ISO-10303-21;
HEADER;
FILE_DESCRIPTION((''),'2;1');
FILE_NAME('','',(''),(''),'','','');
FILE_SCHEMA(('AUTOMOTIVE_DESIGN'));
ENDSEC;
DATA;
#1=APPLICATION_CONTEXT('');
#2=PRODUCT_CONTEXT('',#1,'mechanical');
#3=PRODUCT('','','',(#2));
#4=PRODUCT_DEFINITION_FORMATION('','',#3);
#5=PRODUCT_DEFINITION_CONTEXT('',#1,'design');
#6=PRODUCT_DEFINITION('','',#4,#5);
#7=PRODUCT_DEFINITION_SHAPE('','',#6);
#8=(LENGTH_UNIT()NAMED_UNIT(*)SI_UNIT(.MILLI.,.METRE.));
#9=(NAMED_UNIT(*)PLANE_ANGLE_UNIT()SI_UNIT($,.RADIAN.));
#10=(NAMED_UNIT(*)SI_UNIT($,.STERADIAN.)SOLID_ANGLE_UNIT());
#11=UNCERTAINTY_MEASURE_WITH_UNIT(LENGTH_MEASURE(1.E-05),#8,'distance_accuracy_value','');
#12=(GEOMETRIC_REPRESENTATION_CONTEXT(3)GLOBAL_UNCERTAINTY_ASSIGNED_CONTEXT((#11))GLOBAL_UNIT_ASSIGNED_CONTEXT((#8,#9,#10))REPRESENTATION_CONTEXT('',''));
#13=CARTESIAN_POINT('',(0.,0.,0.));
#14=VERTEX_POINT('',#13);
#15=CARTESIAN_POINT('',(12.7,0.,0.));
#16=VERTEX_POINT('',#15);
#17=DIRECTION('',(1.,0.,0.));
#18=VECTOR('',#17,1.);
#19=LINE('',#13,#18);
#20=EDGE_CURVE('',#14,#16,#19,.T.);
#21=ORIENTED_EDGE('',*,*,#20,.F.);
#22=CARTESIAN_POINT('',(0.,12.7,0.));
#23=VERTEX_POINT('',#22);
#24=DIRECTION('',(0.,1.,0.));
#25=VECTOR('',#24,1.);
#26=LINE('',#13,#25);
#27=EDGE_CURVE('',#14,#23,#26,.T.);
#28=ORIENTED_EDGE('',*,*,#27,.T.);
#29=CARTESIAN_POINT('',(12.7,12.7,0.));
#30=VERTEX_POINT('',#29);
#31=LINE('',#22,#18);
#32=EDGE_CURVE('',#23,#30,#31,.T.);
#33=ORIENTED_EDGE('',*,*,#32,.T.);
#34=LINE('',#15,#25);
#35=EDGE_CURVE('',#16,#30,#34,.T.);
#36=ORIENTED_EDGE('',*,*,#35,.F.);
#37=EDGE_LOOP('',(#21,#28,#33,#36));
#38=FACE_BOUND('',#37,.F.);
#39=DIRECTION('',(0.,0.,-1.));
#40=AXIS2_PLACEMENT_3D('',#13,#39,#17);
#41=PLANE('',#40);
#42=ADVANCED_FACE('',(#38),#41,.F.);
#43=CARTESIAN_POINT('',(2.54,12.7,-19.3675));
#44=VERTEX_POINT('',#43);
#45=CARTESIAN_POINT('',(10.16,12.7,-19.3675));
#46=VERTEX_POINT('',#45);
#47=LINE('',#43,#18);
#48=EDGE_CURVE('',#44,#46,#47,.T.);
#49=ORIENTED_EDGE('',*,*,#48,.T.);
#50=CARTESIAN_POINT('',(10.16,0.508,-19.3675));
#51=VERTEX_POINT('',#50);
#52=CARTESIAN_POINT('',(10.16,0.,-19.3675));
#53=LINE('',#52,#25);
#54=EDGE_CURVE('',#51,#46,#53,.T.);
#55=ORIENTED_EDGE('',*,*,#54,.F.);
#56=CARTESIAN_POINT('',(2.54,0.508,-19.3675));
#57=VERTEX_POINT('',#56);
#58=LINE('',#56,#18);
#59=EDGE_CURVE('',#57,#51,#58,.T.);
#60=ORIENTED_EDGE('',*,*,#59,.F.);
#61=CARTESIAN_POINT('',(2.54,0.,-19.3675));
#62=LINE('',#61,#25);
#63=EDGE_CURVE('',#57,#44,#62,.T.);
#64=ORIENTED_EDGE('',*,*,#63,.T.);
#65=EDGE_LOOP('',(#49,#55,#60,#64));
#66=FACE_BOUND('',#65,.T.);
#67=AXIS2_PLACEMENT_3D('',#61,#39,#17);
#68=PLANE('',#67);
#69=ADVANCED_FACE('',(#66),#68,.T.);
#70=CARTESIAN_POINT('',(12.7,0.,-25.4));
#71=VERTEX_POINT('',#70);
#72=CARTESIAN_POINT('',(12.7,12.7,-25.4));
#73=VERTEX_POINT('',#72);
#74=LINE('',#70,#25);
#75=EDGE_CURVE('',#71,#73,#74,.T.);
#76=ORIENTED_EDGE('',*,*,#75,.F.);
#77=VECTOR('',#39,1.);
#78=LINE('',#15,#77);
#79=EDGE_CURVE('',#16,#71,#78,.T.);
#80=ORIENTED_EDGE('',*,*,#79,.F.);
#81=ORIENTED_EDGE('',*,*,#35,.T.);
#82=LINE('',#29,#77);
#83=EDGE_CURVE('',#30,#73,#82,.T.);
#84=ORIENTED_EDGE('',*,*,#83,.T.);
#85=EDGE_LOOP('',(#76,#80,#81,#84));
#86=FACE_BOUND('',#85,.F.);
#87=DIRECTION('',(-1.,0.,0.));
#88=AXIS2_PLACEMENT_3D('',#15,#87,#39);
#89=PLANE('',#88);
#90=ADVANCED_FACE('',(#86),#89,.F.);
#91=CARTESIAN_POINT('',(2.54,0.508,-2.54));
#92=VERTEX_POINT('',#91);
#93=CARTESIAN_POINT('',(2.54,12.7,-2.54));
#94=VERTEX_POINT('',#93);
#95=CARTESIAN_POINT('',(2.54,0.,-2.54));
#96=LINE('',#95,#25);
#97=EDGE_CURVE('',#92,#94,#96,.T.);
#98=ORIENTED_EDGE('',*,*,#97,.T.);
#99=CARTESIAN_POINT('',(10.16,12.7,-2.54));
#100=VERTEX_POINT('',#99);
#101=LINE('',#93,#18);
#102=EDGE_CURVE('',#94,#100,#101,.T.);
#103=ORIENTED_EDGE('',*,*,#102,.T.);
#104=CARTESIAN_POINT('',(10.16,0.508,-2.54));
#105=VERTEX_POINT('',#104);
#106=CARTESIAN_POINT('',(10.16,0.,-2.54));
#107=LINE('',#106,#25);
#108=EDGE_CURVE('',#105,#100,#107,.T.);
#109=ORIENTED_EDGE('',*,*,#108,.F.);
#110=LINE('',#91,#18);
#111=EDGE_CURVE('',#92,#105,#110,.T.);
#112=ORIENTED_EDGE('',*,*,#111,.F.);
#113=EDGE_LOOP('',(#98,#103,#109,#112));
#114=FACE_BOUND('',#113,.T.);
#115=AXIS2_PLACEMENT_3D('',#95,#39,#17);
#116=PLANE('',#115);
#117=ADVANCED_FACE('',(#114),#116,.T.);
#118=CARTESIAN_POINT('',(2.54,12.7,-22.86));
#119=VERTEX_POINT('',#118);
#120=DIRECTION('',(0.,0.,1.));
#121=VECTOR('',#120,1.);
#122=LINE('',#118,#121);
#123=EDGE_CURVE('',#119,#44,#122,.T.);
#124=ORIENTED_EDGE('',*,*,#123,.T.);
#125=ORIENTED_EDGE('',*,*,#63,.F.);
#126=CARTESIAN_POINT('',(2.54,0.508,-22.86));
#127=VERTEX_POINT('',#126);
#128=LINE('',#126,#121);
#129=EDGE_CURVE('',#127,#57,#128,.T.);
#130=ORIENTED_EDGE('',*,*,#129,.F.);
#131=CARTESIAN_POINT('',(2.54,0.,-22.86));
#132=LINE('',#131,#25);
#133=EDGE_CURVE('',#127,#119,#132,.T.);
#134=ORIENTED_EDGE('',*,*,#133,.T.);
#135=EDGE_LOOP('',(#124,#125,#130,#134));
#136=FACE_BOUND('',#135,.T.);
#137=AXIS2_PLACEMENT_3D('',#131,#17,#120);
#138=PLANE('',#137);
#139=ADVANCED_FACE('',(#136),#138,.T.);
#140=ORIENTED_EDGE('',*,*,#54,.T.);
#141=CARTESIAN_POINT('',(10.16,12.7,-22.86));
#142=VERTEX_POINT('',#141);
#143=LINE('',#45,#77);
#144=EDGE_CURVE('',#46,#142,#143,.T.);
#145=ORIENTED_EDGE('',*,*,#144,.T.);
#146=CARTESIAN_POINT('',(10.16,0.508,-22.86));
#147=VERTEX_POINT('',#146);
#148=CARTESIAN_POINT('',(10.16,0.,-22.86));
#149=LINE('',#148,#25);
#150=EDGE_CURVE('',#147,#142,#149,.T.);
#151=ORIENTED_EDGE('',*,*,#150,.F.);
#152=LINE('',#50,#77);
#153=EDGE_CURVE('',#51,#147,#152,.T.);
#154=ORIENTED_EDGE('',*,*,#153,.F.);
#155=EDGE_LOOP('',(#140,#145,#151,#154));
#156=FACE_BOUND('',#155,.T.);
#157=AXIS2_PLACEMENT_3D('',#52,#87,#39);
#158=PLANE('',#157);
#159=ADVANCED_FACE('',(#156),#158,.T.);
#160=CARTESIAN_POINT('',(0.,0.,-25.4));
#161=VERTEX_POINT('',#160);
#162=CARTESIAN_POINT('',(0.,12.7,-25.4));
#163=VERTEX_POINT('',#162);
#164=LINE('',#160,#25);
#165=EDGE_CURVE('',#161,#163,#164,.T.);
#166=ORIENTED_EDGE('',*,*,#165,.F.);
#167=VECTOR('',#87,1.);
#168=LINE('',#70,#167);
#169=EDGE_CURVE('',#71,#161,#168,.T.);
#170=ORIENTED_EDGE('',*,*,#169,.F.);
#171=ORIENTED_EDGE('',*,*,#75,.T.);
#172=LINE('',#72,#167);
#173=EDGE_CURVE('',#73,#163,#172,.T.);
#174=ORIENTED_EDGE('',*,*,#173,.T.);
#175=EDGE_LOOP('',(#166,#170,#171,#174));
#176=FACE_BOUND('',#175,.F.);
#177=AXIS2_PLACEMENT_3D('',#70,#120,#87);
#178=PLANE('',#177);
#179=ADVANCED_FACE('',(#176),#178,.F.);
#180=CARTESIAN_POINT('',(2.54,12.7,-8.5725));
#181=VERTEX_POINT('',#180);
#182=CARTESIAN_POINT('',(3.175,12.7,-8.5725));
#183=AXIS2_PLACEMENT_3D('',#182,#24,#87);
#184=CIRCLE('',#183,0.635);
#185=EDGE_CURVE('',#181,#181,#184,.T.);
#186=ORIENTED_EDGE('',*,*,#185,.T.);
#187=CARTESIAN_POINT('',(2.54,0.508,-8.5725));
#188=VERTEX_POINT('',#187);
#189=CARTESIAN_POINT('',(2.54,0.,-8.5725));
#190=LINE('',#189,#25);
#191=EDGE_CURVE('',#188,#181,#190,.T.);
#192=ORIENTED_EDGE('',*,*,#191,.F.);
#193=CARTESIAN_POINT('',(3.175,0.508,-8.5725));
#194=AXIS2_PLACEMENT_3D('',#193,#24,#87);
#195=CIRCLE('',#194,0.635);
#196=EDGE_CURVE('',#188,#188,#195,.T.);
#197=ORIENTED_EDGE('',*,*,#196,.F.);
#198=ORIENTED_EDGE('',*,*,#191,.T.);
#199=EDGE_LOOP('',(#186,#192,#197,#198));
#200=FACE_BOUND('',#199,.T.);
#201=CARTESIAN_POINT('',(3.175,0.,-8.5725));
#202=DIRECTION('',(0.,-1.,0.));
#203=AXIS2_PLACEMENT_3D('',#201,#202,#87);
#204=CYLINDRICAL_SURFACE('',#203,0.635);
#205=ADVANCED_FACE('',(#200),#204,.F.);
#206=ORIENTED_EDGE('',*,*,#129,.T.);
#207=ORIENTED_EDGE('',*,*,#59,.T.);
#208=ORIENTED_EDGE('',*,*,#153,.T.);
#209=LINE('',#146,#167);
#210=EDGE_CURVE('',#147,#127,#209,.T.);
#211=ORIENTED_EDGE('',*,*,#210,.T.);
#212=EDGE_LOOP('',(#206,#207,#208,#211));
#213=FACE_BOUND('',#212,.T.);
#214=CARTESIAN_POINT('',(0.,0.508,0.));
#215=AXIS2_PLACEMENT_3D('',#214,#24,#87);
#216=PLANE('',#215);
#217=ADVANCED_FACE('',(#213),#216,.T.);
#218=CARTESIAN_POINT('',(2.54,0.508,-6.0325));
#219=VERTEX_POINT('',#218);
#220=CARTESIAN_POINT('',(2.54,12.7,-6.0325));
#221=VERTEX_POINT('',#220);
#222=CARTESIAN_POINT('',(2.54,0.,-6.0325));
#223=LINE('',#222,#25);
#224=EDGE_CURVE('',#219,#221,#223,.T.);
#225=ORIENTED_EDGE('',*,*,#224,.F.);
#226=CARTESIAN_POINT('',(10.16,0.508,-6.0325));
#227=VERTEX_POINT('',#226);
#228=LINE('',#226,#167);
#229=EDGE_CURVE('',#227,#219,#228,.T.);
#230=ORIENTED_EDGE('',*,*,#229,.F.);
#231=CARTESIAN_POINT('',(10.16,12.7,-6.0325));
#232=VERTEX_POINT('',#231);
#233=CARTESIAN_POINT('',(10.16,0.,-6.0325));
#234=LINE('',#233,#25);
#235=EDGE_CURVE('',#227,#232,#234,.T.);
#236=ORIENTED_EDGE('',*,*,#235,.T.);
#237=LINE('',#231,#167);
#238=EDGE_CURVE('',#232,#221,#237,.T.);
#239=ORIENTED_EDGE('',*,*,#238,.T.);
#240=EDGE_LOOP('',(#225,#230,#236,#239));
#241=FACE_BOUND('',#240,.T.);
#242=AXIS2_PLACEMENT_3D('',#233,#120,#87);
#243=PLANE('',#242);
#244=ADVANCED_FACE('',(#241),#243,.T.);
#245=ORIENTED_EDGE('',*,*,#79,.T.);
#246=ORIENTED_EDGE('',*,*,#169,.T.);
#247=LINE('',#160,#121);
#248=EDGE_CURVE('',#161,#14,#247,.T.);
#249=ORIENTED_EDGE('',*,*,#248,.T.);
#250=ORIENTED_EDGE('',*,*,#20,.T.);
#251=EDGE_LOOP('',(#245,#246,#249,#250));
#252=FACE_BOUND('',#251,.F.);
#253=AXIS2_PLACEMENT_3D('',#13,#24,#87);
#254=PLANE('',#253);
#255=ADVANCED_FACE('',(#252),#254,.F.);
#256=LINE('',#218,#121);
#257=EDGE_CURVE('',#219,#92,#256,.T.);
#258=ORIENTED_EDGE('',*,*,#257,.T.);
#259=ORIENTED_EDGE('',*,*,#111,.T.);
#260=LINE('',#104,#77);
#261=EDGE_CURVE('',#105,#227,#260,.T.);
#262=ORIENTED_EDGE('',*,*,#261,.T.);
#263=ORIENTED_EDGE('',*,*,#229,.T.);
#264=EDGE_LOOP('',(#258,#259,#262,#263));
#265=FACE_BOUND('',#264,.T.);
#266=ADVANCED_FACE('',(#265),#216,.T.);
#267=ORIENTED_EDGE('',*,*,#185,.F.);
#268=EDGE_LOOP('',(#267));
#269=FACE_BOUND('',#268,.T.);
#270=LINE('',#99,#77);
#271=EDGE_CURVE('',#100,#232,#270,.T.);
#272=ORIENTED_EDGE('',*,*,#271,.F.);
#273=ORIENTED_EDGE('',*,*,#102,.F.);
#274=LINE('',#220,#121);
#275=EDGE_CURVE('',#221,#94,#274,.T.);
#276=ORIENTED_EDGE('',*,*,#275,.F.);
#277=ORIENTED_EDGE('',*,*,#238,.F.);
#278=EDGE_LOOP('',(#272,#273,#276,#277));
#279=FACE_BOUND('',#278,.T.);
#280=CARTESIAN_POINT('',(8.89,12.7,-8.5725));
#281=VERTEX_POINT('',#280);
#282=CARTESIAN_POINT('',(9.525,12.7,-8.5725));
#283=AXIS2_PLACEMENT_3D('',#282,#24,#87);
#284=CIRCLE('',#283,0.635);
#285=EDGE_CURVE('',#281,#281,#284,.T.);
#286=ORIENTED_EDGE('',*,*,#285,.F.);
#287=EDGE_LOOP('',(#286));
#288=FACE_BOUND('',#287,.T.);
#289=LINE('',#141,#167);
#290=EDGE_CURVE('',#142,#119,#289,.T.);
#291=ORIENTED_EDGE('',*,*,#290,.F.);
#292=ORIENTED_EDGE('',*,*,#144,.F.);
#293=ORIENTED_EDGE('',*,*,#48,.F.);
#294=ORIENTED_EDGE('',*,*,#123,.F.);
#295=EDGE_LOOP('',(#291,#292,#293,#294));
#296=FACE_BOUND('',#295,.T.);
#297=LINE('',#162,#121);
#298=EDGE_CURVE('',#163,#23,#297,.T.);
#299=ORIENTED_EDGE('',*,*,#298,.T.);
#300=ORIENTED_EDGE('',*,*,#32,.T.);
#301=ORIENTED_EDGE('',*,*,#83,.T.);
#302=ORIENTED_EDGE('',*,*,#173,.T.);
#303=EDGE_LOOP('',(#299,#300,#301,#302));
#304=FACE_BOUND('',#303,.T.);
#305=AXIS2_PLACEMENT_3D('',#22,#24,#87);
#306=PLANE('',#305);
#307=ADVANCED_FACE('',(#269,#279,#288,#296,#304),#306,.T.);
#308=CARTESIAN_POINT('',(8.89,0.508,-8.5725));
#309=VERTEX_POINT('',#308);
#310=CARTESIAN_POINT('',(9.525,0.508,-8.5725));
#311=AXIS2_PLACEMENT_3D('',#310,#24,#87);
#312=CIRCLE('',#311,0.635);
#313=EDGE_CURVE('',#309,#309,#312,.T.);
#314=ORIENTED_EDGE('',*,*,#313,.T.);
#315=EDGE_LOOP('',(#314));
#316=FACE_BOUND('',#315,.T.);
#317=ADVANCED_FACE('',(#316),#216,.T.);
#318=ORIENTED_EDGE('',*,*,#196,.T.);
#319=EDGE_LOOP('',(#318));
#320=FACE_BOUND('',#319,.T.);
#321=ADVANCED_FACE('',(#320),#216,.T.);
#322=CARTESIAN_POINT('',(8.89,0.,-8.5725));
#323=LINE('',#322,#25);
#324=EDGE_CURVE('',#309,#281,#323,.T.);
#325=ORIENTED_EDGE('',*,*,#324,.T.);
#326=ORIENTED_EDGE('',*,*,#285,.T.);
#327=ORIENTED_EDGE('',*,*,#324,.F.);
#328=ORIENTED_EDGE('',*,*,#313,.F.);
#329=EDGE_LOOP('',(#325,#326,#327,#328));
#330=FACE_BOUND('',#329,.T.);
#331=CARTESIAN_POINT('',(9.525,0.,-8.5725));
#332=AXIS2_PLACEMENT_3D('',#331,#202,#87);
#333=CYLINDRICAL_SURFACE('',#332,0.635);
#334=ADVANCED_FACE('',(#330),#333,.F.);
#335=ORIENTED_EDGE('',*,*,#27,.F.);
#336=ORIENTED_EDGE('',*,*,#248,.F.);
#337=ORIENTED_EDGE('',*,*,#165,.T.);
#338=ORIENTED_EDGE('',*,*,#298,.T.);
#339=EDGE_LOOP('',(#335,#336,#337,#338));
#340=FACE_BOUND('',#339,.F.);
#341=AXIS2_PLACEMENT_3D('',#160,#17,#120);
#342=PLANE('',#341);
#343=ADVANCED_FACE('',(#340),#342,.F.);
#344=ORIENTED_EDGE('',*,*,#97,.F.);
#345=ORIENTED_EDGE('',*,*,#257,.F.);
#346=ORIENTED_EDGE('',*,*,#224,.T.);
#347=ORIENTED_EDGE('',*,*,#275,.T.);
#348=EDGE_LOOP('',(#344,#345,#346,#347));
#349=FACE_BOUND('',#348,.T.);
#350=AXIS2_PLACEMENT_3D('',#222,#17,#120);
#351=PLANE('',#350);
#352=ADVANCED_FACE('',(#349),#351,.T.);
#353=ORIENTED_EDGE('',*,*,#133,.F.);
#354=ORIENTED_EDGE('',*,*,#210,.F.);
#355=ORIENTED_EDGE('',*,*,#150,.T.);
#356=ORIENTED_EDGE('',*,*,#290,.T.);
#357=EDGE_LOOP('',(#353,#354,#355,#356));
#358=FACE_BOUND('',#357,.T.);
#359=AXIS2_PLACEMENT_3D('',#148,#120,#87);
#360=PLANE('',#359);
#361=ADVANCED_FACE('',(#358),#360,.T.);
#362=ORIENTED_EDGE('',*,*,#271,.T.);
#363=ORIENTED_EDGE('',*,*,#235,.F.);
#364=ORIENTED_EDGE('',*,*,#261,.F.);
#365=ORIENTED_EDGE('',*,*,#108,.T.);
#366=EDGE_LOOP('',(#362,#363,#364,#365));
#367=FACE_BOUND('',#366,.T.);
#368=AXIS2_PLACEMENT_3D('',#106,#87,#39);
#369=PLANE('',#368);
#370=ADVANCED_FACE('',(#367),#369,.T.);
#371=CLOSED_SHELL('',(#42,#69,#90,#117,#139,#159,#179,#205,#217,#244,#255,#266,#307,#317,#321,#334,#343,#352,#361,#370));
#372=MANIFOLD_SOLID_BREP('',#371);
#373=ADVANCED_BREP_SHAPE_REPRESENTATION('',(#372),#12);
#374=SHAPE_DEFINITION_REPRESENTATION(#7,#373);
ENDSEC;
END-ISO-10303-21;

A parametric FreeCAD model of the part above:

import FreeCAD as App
import Part
import Sketcher
Q = App.Units.Quantity


def add_polygon(sketch, points):
    """Adds a closed chain of lines whose ends are joined by coincident constraints."""
    first, n = sketch.GeometryCount, len(points)
    for a, b in zip(points, points[1:] + points[:1]):
        sketch.addGeometry(Part.LineSegment(App.Vector(*a, 0), App.Vector(*b, 0)), False)
    for i in range(n):
        sketch.addConstraint(Sketcher.Constraint("Coincident", first + i, 2, first + (i + 1) % n, 1))

doc = App.newDocument("Part")
params = doc.addObject("Spreadsheet::Sheet", "Params")
for row, (alias, value) in enumerate([
    ("sketch1_diameter", "0.05 in"),
    ("sketch1_height", "1 in"),
    ("sketch1_width", "0.5 in"),
    ("pad1_length", "0.5 in"),
    ("sketch2_diameter", "0.05 in"),
    ("sketch2_width", "0.3 in"),
    ("pad2_length", "0.02 in"),
], start=1):
    params.set(f"A{row}", alias)
    params.set(f"B{row}", "=" + value)
    params.setAlias(f"B{row}", alias)

body = doc.addObject("PartDesign::Body", "Body")

sketch1 = body.newObject("Sketcher::SketchObject", "Sketch")
sketch1.AttachmentSupport = (doc.getObject("XZ_Plane"), [""])
sketch1.MapMode = "FlatFace"
add_polygon(sketch1, [(0, -25.4), (0, 0), (12.7, 0), (12.7, -25.4)])
add_polygon(sketch1, [(10.2, -19.4), (2.5, -19.4), (2.5, -22.9), (10.2, -22.9)])
sketch1.addGeometry(Part.Circle(App.Vector(9.5, -8.6, 0), App.Vector(0, 0, 1), 0.6), False)
add_polygon(sketch1, [(10.2, -2.5), (2.5, -2.5), (2.5, -6), (10.2, -6)])
sketch1.addGeometry(Part.Circle(App.Vector(3.2, -8.6, 0), App.Vector(0, 0, 1), 0.6), False)
sketch1.addConstraint(Sketcher.Constraint("Vertical", 0))
sketch1.addConstraint(Sketcher.Constraint("Horizontal", 1))
sketch1.addConstraint(Sketcher.Constraint("Vertical", 2))
sketch1.addConstraint(Sketcher.Constraint("Horizontal", 3))
sketch1.addConstraint(Sketcher.Constraint("Horizontal", 4))
sketch1.addConstraint(Sketcher.Constraint("Vertical", 5))
sketch1.addConstraint(Sketcher.Constraint("Horizontal", 6))
sketch1.addConstraint(Sketcher.Constraint("Vertical", 7))
sketch1.addConstraint(Sketcher.Constraint("Horizontal", 9))
sketch1.addConstraint(Sketcher.Constraint("Vertical", 10))
sketch1.addConstraint(Sketcher.Constraint("Horizontal", 11))
sketch1.addConstraint(Sketcher.Constraint("Vertical", 12))
sketch1.addConstraint(Sketcher.Constraint("Coincident", 0, 2, -1, 1))
sketch1.addConstraint(Sketcher.Constraint("Equal", 8, 13))
sketch1.addConstraint(Sketcher.Constraint("Horizontal", 8, 3, 13, 3))
sketch1.addConstraint(Sketcher.Constraint("Vertical", 5, 2, 9, 2))
sketch1.addConstraint(Sketcher.Constraint("Vertical", 7, 2, 11, 2))
sketch1.addConstraint(Sketcher.Constraint("Equal", 7, 10))
sketch1.addConstraint(Sketcher.Constraint("Diameter", 8, Q("0.05 in")))
sketch1.addConstraint(Sketcher.Constraint("DistanceY", 0, 1, 0, 2, Q("1 in")))
sketch1.addConstraint(Sketcher.Constraint("DistanceX", 1, 1, 1, 2, Q("0.5 in")))
sketch1.addConstraint(Sketcher.Constraint("DistanceX", -1, 1, 4, 2, Q("0.1 in")))
sketch1.addConstraint(Sketcher.Constraint("DistanceY", 9, 2, -1, 1, Q("0.1 in")))
sketch1.addConstraint(Sketcher.Constraint("DistanceY", 3, 2, 5, 2, Q("0.1 in")))
sketch1.addConstraint(Sketcher.Constraint("DistanceX", 6, 2, 2, 2, Q("0.1 in")))
sketch1.addConstraint(Sketcher.Constraint("DistanceY", 13, 3, 10, 2, Q("0.1 in")))
sketch1.addConstraint(Sketcher.Constraint("DistanceX", 13, 3, 8, 3, Q("0.25 in")))
sketch1.addConstraint(Sketcher.Constraint("DistanceY", 5, 2, 5, 1, Q("0.1375 in")))
sketch1.addConstraint(Sketcher.Constraint("DistanceX", -1, 1, 8, 3, Q("0.375 in")))
sketch1.setExpression("Constraints[30]", "Params.sketch1_diameter")
sketch1.setExpression("Constraints[31]", "Params.sketch1_height")
sketch1.setExpression("Constraints[32]", "Params.sketch1_width")
pad1 = body.newObject("PartDesign::Pad", "Pad")
pad1.Profile = sketch1
pad1.setExpression("Length", "Params.pad1_length")
pad1.Reversed = True

sketch2 = body.newObject("Sketcher::SketchObject", "Sketch001")
sketch2.AttachmentSupport = (doc.getObject("XZ_Plane"), [""])
sketch2.MapMode = "FlatFace"
add_polygon(sketch2, [(2.5, -6), (2.5, -2.5), (10.2, -2.5), (10.2, -6)])
sketch2.addGeometry(Part.Circle(App.Vector(3.2, -8.6, 0), App.Vector(0, 0, 1), 0.6), False)
sketch2.addGeometry(Part.Circle(App.Vector(9.5, -8.6, 0), App.Vector(0, 0, 1), 0.6), False)
add_polygon(sketch2, [(2.5, -22.9), (2.5, -19.4), (10.2, -19.4), (10.2, -22.9)])
sketch2.addConstraint(Sketcher.Constraint("Vertical", 0))
sketch2.addConstraint(Sketcher.Constraint("Horizontal", 1))
sketch2.addConstraint(Sketcher.Constraint("Vertical", 2))
sketch2.addConstraint(Sketcher.Constraint("Horizontal", 3))
sketch2.addConstraint(Sketcher.Constraint("Vertical", 6))
sketch2.addConstraint(Sketcher.Constraint("Horizontal", 7))
sketch2.addConstraint(Sketcher.Constraint("Vertical", 8))
sketch2.addConstraint(Sketcher.Constraint("Horizontal", 9))
sketch2.addConstraint(Sketcher.Constraint("Equal", 4, 5))
sketch2.addConstraint(Sketcher.Constraint("Horizontal", 4, 3, 5, 3))
sketch2.addConstraint(Sketcher.Constraint("Vertical", 3, 2, 6, 2))
sketch2.addConstraint(Sketcher.Constraint("Vertical", 2, 2, 7, 2))
sketch2.addConstraint(Sketcher.Constraint("Equal", 2, 6))
sketch2.addConstraint(Sketcher.Constraint("Diameter", 4, Q("0.05 in")))
sketch2.addConstraint(Sketcher.Constraint("DistanceX", -1, 1, 0, 2, Q("0.1 in")))
sketch2.addConstraint(Sketcher.Constraint("DistanceY", 0, 2, -1, 1, Q("0.1 in")))
sketch2.addConstraint(Sketcher.Constraint("DistanceY", 5, 3, 2, 2, Q("0.1 in")))
sketch2.addConstraint(Sketcher.Constraint("DistanceX", 1, 1, 1, 2, Q("0.3 in")))
sketch2.addConstraint(Sketcher.Constraint("DistanceY", 8, 2, -1, 1, Q("0.9 in")))
sketch2.addConstraint(Sketcher.Constraint("DistanceX", 4, 3, 5, 3, Q("0.25 in")))
sketch2.addConstraint(Sketcher.Constraint("DistanceY", 0, 1, 0, 2, Q("0.1375 in")))
sketch2.addConstraint(Sketcher.Constraint("DistanceX", -1, 1, 4, 3, Q("0.125 in")))
sketch2.setExpression("Constraints[21]", "Params.sketch2_diameter")
sketch2.setExpression("Constraints[25]", "Params.sketch2_width")
pad2 = body.newObject("PartDesign::Pad", "Pad001")
pad2.Profile = sketch2
pad2.setExpression("Length", "Params.pad2_length")
pad2.Reversed = True

doc.recompute()
